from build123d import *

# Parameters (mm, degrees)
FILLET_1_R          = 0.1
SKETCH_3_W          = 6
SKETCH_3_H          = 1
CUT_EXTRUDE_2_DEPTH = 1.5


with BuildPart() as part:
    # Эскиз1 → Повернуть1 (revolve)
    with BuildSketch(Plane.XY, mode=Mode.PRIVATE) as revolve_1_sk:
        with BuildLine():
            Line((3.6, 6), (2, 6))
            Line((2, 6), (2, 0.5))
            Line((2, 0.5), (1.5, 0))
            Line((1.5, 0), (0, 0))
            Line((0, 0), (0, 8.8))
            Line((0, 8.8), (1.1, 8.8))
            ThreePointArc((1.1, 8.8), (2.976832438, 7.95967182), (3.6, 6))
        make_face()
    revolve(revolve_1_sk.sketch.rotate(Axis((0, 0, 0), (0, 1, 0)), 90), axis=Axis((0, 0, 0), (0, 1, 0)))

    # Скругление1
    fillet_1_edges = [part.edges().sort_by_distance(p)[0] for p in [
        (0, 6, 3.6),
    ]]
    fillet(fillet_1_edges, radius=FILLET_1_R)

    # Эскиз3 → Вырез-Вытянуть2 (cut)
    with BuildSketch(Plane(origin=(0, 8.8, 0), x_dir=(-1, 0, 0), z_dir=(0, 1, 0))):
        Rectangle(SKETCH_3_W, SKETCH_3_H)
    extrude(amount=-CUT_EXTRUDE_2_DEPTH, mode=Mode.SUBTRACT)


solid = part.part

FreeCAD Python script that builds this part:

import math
import FreeCAD as App
import Part
import Sketcher
Q = App.Units.Quantity


def edges_at(feature, points):
    """Names of the edges that pass closest to the given points."""
    edges = feature.Shape.Edges
    near = lambda p: min(range(len(edges)), key=lambda i: edges[i].distToShape(Part.Vertex(*p))[0])
    return sorted({f"Edge{near(p) + 1}" for p in points})

doc = App.newDocument("Part")
params = doc.addObject("Spreadsheet::Sheet", "Params")
for row, (alias, value) in enumerate([
    ("sketch1_width", "1.6 mm"),
    ("sketch1_width2", "1.1 mm"),
    ("sketch1_width3", "1.5 mm"),
    ("sketch1_height", "8.8 mm"),
    ("sketch1_height2", "5.5 mm"),
    ("revolution_angle", "360 deg"),
    ("fillet_radius", "0.1 mm"),
    ("sketch2_width", "6 mm"),
    ("sketch2_height", "1 mm"),
    ("pocket1_length", "1.5 mm"),
], start=1):
    params.set(f"A{row}", alias)
    params.set(f"B{row}", "=" + value)
    params.setAlias(f"B{row}", alias)

body = doc.addObject("PartDesign::Body", "Body")

sketch1 = body.newObject("Sketcher::SketchObject", "Sketch")
sketch1.AttachmentSupport = (doc.getObject("XY_Plane"), [""])
sketch1.MapMode = "FlatFace"
sketch1.addGeometry([
    Part.LineSegment(App.Vector(2, 6, 0), App.Vector(3.6, 6, 0)),
    Part.ArcOfCircle(Part.Circle(App.Vector(1.1, 6.3, 0), App.Vector(0, 0, 1), 2.5), math.radians(-6), math.radians(90)),
    Part.LineSegment(App.Vector(1.1, 8.8, 0), App.Vector(0, 8.8, 0)),
    Part.LineSegment(App.Vector(0, 8.8, 0), App.Vector(0, 0, 0)),
    Part.LineSegment(App.Vector(0, 0, 0), App.Vector(1.5, 0, 0)),
    Part.LineSegment(App.Vector(1.5, 0, 0), App.Vector(2, 0.5, 0)),
    Part.LineSegment(App.Vector(2, 0.5, 0), App.Vector(2, 6, 0)),
], False)
sketch1.addConstraint([
    Sketcher.Constraint("Coincident", 0, 2, 1, 1),
    Sketcher.Constraint("Tangent", 1, 2, 2, 1),
    Sketcher.Constraint("Coincident", 2, 2, 3, 1),
    Sketcher.Constraint("Coincident", 3, 2, 4, 1),
    Sketcher.Constraint("Coincident", 4, 2, 5, 1),
    Sketcher.Constraint("Coincident", 5, 2, 6, 1),
    Sketcher.Constraint("Coincident", 6, 2, 0, 1),
    Sketcher.Constraint("Horizontal", 0),
    Sketcher.Constraint("Horizontal", 2),
    Sketcher.Constraint("Vertical", 3),
    Sketcher.Constraint("Horizontal", 4),
    Sketcher.Constraint("Vertical", 6),
    Sketcher.Constraint("Coincident", 3, 2, -1, 1),
    Sketcher.Constraint("Angle", 5, Q("45 deg")),
    Sketcher.Constraint("DistanceX", 0, 1, 0, 2, Q("1.6 mm")),
    Sketcher.Constraint("DistanceX", 2, 2, 2, 1, Q("1.1 mm")),
    Sketcher.Constraint("DistanceX", 4, 1, 4, 2, Q("1.5 mm")),
    Sketcher.Constraint("DistanceY", 3, 2, 3, 1, Q("8.8 mm")),
    Sketcher.Constraint("DistanceY", 6, 1, 6, 2, Q("5.5 mm")),
    Sketcher.Constraint("DistanceY", -1, 1, 0, 2, Q("6 mm")),
])
sketch1.setExpression("Constraints[14]", "Params.sketch1_width")
sketch1.setExpression("Constraints[15]", "Params.sketch1_width2")
sketch1.setExpression("Constraints[16]", "Params.sketch1_width3")
sketch1.setExpression("Constraints[17]", "Params.sketch1_height")
sketch1.setExpression("Constraints[18]", "Params.sketch1_height2")
revolution = body.newObject("PartDesign::Revolution", "Revolution")
revolution.Profile = sketch1
revolution.ReferenceAxis = (sketch1, ["V_Axis"])
revolution.setExpression("Angle", "Params.revolution_angle")
doc.recompute()

fillet = body.newObject("PartDesign::Fillet", "Fillet")
fillet.Base = (revolution, edges_at(revolution, [(0, 6, 3.6)]))
fillet.setExpression("Radius", "Params.fillet_radius")

sketch2 = body.newObject("Sketcher::SketchObject", "Sketch001")
sketch2.AttachmentSupport = (doc.getObject("XZ_Plane"), [""])
sketch2.MapMode = "FlatFace"
sketch2.AttachmentOffset = App.Placement(App.Vector(0, 0, -8.8), App.Rotation())
sketch2.addGeometry([
    Part.LineSegment(App.Vector(3, 0.5, 0), App.Vector(3, -0.5, 0)),
    Part.LineSegment(App.Vector(3, -0.5, 0), App.Vector(-3, -0.5, 0)),
    Part.LineSegment(App.Vector(-3, -0.5, 0), App.Vector(-3, 0.5, 0)),
    Part.LineSegment(App.Vector(-3, 0.5, 0), App.Vector(3, 0.5, 0)),
], False)
sketch2.addConstraint([
    Sketcher.Constraint("Coincident", 0, 2, 1, 1),
    Sketcher.Constraint("Coincident", 1, 2, 2, 1),
    Sketcher.Constraint("Coincident", 2, 2, 3, 1),
    Sketcher.Constraint("Coincident", 3, 2, 0, 1),
    Sketcher.Constraint("Vertical", 0),
    Sketcher.Constraint("Horizontal", 1),
    Sketcher.Constraint("Vertical", 2),
    Sketcher.Constraint("Horizontal", 3),
    Sketcher.Constraint("Symmetric", 0, 2, 2, 2, -1, 1),
    Sketcher.Constraint("DistanceX", 1, 2, 1, 1, Q("6 mm")),
    Sketcher.Constraint("DistanceY", 0, 2, 0, 1, Q("1 mm")),
])
sketch2.setExpression("Constraints[9]", "Params.sketch2_width")
sketch2.setExpression("Constraints[10]", "Params.sketch2_height")
pocket1 = body.newObject("PartDesign::Pocket", "Pocket")
pocket1.Profile = sketch2
pocket1.setExpression("Length", "Params.pocket1_length")
pocket1.Reversed = True

doc.recompute()
